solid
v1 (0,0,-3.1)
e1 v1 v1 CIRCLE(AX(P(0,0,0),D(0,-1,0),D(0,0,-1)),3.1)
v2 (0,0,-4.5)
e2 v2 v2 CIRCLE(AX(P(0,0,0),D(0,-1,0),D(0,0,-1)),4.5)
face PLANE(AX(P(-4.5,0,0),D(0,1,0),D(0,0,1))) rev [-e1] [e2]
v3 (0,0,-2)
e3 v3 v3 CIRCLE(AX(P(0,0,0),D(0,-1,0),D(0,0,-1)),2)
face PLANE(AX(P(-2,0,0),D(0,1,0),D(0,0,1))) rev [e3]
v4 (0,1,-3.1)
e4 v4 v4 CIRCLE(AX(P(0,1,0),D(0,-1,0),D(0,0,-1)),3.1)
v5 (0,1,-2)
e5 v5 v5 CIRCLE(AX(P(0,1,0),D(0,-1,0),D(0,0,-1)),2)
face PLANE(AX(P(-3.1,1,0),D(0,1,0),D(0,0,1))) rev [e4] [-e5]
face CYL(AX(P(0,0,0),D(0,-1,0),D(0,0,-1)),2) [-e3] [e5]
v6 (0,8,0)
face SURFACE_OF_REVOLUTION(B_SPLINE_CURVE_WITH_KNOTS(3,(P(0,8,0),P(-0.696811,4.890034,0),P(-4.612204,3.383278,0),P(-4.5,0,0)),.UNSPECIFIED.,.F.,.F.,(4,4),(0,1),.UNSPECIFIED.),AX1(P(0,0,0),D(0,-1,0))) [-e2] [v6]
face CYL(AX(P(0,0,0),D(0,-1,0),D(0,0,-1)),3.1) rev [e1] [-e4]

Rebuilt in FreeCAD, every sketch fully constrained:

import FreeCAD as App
import Part
import Sketcher
from FreeCAD import Vector
Q = App.Units.Quantity

doc = App.newDocument("Part")
body = doc.addObject("PartDesign::Body", "Body")

sketch1 = body.newObject("Sketcher::SketchObject", "Sketch")
sketch1.AttachmentSupport = (doc.getObject("XY_Plane"), [""])
sketch1.MapMode = "FlatFace"
sketch1.addGeometry(Part.LineSegment(Vector(-4.5, 0, 0), Vector(-3.1, 0, 0)), False)
sketch1.addGeometry(Part.LineSegment(Vector(-3.1, 0, 0), Vector(-3.1, 1, 0)), False)
sketch1.addGeometry(Part.LineSegment(Vector(-3.1, 1, 0), Vector(-2, 1, 0)), False)
sketch1.addGeometry(Part.LineSegment(Vector(-2, 1, 0), Vector(-2, 0, 0)), False)
sketch1.addGeometry(Part.LineSegment(Vector(-2, 0, 0), Vector(0, 0, 0)), False)
sketch1.addGeometry(Part.LineSegment(Vector(0, 0, 0), Vector(0, 8, 0)), False)
sketch1.addGeometry(Part.BSplineCurve([Vector(-4.5, 0, 0), Vector(-4.612204, 3.383278, 0), Vector(-0.696811, 4.890034, 0), Vector(0, 8, 0)], [4, 4], [0, 1], False, 3, [1, 1, 1, 1], False), False)
sketch1.addConstraint(Sketcher.Constraint("Block", 6))
sketch1.addConstraint(Sketcher.Constraint("Coincident", 0, 2, 1, 1))
sketch1.addConstraint(Sketcher.Constraint("Coincident", 1, 2, 2, 1))
sketch1.addConstraint(Sketcher.Constraint("Coincident", 2, 2, 3, 1))
sketch1.addConstraint(Sketcher.Constraint("Coincident", 3, 2, 4, 1))
sketch1.addConstraint(Sketcher.Constraint("Coincident", 4, 2, 5, 1))
sketch1.addConstraint(Sketcher.Constraint("Coincident", 5, 2, 6, 2))
sketch1.addConstraint(Sketcher.Constraint("Coincident", 6, 1, 0, 1))
sketch1.addConstraint(Sketcher.Constraint("Horizontal", 0))
sketch1.addConstraint(Sketcher.Constraint("Vertical", 1))
sketch1.addConstraint(Sketcher.Constraint("Horizontal", 2))
sketch1.addConstraint(Sketcher.Constraint("Vertical", 3))
sketch1.addConstraint(Sketcher.Constraint("Horizontal", 4))
sketch1.addConstraint(Sketcher.Constraint("Vertical", 5))
sketch1.addConstraint(Sketcher.Constraint("PointOnObject", 3, 2, -1))
sketch1.addConstraint(Sketcher.Constraint("DistanceX", 4, 1, 4, 2, Q("2 mm")))
sketch1.addConstraint(Sketcher.Constraint("DistanceY", 1, 1, 1, 2, Q("1 mm")))
sketch1.addConstraint(Sketcher.Constraint("DistanceX", 0, 1, 0, 2, Q("1.4 mm")))
revolution = body.newObject("PartDesign::Revolution", "Revolution")
revolution.Profile = sketch1
revolution.ReferenceAxis = (sketch1, ["V_Axis"])
revolution.Angle = 360

doc.recompute()
